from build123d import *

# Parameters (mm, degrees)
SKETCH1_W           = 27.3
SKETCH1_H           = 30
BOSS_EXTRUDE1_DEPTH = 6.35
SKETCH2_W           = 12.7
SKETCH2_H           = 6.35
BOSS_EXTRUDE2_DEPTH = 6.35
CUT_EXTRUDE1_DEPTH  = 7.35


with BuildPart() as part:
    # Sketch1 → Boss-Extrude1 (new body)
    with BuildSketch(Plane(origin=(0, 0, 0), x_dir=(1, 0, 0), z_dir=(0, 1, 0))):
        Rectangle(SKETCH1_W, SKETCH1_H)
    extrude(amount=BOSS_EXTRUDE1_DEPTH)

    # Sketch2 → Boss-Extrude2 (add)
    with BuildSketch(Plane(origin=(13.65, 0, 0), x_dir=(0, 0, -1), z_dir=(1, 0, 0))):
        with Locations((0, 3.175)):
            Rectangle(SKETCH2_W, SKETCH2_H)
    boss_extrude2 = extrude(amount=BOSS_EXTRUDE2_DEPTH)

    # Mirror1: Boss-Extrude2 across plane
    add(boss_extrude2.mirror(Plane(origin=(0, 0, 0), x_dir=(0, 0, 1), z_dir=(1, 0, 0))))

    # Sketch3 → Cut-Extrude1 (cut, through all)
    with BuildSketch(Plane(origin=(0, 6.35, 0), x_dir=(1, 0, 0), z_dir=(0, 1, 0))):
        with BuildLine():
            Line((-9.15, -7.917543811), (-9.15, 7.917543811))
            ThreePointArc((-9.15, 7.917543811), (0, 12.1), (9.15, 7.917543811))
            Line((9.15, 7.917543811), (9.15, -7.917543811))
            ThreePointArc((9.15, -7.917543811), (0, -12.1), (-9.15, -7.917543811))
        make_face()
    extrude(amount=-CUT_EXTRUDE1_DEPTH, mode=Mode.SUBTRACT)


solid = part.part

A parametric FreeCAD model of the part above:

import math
import FreeCAD as App
import Part
import Sketcher
Q = App.Units.Quantity


def add_polygon(sketch, points):
    """Adds a closed chain of lines whose ends are joined by coincident constraints."""
    first, n = sketch.GeometryCount, len(points)
    for a, b in zip(points, points[1:] + points[:1]):
        sketch.addGeometry(Part.LineSegment(App.Vector(*a, 0), App.Vector(*b, 0)), False)
    for i in range(n):
        sketch.addConstraint(Sketcher.Constraint("Coincident", first + i, 2, first + (i + 1) % n, 1))

doc = App.newDocument("Part")
body = doc.addObject("PartDesign::Body", "Body")

sketch1 = body.newObject("Sketcher::SketchObject", "Sketch")
sketch1.AttachmentSupport = (doc.getObject("XZ_Plane"), [""])
sketch1.MapMode = "FlatFace"
add_polygon(sketch1, [(-14, -15), (-14, 15), (14, 15), (14, -15)])
sketch1.addConstraint([
    Sketcher.Constraint("Vertical", 0),
    Sketcher.Constraint("Horizontal", 1),
    Sketcher.Constraint("Vertical", 2),
    Sketcher.Constraint("Horizontal", 3),
    Sketcher.Constraint("Symmetric", 0, 2, 2, 2, -1, 1),
    Sketcher.Constraint("DistanceY", 0, 1, 0, 2, Q("30 mm")),
    Sketcher.Constraint("DistanceX", 1, 1, 1, 2, Q("27.3 mm")),
])
pad1 = body.newObject("PartDesign::Pad", "Pad")
pad1.Profile = sketch1
pad1.Length = 6.35
pad1.Reversed = True

sketch2 = body.newObject("Sketcher::SketchObject", "Sketch001")
sketch2.AttachmentSupport = (doc.getObject("YZ_Plane"), [""])
sketch2.MapMode = "FlatFace"
sketch2.AttachmentOffset = App.Placement(App.Vector(0, 0, 13.65), App.Rotation())
add_polygon(sketch2, [(6, 6), (0, 6), (0, -6), (6, -6)])
sketch2.addConstraint([
    Sketcher.Constraint("Horizontal", 0),
    Sketcher.Constraint("Vertical", 1),
    Sketcher.Constraint("Horizontal", 2),
    Sketcher.Constraint("Vertical", 3),
    Sketcher.Constraint("Symmetric", 0, 2, 1, 2, -1, 1),
    Sketcher.Constraint("DistanceY", 1, 2, 1, 1, Q("12.7 mm")),
    Sketcher.Constraint("DistanceX", 0, 2, 0, 1, Q("6.35 mm")),
])
pad2 = body.newObject("PartDesign::Pad", "Pad001")
pad2.Profile = sketch2
pad2.Length = 6.35
doc.recompute()

mirrored = body.newObject("PartDesign::Mirrored", "Mirrored")
mirrored.Originals = [pad2]
mirrored.MirrorPlane = (doc.getObject("YZ_Plane"), [""])
body.Tip = mirrored

sketch3 = body.newObject("Sketcher::SketchObject", "Sketch002")
sketch3.AttachmentSupport = (doc.getObject("XZ_Plane"), [""])
sketch3.MapMode = "FlatFace"
sketch3.AttachmentOffset = App.Placement(App.Vector(0, 0, -6.35), App.Rotation())
sketch3.addGeometry([
    Part.LineSegment(App.Vector(-9, -8, 0), App.Vector(-9, 8, 0)),
    Part.ArcOfCircle(Part.Circle(App.Vector(0, 0, 0), App.Vector(0, 0, 1), 12), math.radians(41), math.radians(139)),
    Part.LineSegment(App.Vector(9, 8, 0), App.Vector(9, -8, 0)),
    Part.ArcOfCircle(Part.Circle(App.Vector(0, 0, 0), App.Vector(0, 0, 1), 12), math.radians(-139), math.radians(-41)),
], False)
sketch3.addConstraint([
    Sketcher.Constraint("Coincident", 0, 2, 1, 2),
    Sketcher.Constraint("Coincident", 1, 1, 2, 1),
    Sketcher.Constraint("Coincident", 2, 2, 3, 2),
    Sketcher.Constraint("Coincident", 3, 1, 0, 1),
    Sketcher.Constraint("Vertical", 0),
    Sketcher.Constraint("Vertical", 2),
    Sketcher.Constraint("Coincident", 1, 3, -1, 1),
    Sketcher.Constraint("Coincident", 3, 3, -1, 1),
    Sketcher.Constraint("Equal", 1, 3),
    Sketcher.Constraint("Horizontal", 0, 2, 1, 1),
    Sketcher.Constraint("Radius", 1, Q("12.1 mm")),
    Sketcher.Constraint("DistanceX", 0, 2, 1, 1, Q("18.3 mm")),
])
pocket1 = body.newObject("PartDesign::Pocket", "Pocket")
pocket1.Profile = sketch3
pocket1.Type = "ThroughAll"
pocket1.Reversed = True

doc.recompute()
